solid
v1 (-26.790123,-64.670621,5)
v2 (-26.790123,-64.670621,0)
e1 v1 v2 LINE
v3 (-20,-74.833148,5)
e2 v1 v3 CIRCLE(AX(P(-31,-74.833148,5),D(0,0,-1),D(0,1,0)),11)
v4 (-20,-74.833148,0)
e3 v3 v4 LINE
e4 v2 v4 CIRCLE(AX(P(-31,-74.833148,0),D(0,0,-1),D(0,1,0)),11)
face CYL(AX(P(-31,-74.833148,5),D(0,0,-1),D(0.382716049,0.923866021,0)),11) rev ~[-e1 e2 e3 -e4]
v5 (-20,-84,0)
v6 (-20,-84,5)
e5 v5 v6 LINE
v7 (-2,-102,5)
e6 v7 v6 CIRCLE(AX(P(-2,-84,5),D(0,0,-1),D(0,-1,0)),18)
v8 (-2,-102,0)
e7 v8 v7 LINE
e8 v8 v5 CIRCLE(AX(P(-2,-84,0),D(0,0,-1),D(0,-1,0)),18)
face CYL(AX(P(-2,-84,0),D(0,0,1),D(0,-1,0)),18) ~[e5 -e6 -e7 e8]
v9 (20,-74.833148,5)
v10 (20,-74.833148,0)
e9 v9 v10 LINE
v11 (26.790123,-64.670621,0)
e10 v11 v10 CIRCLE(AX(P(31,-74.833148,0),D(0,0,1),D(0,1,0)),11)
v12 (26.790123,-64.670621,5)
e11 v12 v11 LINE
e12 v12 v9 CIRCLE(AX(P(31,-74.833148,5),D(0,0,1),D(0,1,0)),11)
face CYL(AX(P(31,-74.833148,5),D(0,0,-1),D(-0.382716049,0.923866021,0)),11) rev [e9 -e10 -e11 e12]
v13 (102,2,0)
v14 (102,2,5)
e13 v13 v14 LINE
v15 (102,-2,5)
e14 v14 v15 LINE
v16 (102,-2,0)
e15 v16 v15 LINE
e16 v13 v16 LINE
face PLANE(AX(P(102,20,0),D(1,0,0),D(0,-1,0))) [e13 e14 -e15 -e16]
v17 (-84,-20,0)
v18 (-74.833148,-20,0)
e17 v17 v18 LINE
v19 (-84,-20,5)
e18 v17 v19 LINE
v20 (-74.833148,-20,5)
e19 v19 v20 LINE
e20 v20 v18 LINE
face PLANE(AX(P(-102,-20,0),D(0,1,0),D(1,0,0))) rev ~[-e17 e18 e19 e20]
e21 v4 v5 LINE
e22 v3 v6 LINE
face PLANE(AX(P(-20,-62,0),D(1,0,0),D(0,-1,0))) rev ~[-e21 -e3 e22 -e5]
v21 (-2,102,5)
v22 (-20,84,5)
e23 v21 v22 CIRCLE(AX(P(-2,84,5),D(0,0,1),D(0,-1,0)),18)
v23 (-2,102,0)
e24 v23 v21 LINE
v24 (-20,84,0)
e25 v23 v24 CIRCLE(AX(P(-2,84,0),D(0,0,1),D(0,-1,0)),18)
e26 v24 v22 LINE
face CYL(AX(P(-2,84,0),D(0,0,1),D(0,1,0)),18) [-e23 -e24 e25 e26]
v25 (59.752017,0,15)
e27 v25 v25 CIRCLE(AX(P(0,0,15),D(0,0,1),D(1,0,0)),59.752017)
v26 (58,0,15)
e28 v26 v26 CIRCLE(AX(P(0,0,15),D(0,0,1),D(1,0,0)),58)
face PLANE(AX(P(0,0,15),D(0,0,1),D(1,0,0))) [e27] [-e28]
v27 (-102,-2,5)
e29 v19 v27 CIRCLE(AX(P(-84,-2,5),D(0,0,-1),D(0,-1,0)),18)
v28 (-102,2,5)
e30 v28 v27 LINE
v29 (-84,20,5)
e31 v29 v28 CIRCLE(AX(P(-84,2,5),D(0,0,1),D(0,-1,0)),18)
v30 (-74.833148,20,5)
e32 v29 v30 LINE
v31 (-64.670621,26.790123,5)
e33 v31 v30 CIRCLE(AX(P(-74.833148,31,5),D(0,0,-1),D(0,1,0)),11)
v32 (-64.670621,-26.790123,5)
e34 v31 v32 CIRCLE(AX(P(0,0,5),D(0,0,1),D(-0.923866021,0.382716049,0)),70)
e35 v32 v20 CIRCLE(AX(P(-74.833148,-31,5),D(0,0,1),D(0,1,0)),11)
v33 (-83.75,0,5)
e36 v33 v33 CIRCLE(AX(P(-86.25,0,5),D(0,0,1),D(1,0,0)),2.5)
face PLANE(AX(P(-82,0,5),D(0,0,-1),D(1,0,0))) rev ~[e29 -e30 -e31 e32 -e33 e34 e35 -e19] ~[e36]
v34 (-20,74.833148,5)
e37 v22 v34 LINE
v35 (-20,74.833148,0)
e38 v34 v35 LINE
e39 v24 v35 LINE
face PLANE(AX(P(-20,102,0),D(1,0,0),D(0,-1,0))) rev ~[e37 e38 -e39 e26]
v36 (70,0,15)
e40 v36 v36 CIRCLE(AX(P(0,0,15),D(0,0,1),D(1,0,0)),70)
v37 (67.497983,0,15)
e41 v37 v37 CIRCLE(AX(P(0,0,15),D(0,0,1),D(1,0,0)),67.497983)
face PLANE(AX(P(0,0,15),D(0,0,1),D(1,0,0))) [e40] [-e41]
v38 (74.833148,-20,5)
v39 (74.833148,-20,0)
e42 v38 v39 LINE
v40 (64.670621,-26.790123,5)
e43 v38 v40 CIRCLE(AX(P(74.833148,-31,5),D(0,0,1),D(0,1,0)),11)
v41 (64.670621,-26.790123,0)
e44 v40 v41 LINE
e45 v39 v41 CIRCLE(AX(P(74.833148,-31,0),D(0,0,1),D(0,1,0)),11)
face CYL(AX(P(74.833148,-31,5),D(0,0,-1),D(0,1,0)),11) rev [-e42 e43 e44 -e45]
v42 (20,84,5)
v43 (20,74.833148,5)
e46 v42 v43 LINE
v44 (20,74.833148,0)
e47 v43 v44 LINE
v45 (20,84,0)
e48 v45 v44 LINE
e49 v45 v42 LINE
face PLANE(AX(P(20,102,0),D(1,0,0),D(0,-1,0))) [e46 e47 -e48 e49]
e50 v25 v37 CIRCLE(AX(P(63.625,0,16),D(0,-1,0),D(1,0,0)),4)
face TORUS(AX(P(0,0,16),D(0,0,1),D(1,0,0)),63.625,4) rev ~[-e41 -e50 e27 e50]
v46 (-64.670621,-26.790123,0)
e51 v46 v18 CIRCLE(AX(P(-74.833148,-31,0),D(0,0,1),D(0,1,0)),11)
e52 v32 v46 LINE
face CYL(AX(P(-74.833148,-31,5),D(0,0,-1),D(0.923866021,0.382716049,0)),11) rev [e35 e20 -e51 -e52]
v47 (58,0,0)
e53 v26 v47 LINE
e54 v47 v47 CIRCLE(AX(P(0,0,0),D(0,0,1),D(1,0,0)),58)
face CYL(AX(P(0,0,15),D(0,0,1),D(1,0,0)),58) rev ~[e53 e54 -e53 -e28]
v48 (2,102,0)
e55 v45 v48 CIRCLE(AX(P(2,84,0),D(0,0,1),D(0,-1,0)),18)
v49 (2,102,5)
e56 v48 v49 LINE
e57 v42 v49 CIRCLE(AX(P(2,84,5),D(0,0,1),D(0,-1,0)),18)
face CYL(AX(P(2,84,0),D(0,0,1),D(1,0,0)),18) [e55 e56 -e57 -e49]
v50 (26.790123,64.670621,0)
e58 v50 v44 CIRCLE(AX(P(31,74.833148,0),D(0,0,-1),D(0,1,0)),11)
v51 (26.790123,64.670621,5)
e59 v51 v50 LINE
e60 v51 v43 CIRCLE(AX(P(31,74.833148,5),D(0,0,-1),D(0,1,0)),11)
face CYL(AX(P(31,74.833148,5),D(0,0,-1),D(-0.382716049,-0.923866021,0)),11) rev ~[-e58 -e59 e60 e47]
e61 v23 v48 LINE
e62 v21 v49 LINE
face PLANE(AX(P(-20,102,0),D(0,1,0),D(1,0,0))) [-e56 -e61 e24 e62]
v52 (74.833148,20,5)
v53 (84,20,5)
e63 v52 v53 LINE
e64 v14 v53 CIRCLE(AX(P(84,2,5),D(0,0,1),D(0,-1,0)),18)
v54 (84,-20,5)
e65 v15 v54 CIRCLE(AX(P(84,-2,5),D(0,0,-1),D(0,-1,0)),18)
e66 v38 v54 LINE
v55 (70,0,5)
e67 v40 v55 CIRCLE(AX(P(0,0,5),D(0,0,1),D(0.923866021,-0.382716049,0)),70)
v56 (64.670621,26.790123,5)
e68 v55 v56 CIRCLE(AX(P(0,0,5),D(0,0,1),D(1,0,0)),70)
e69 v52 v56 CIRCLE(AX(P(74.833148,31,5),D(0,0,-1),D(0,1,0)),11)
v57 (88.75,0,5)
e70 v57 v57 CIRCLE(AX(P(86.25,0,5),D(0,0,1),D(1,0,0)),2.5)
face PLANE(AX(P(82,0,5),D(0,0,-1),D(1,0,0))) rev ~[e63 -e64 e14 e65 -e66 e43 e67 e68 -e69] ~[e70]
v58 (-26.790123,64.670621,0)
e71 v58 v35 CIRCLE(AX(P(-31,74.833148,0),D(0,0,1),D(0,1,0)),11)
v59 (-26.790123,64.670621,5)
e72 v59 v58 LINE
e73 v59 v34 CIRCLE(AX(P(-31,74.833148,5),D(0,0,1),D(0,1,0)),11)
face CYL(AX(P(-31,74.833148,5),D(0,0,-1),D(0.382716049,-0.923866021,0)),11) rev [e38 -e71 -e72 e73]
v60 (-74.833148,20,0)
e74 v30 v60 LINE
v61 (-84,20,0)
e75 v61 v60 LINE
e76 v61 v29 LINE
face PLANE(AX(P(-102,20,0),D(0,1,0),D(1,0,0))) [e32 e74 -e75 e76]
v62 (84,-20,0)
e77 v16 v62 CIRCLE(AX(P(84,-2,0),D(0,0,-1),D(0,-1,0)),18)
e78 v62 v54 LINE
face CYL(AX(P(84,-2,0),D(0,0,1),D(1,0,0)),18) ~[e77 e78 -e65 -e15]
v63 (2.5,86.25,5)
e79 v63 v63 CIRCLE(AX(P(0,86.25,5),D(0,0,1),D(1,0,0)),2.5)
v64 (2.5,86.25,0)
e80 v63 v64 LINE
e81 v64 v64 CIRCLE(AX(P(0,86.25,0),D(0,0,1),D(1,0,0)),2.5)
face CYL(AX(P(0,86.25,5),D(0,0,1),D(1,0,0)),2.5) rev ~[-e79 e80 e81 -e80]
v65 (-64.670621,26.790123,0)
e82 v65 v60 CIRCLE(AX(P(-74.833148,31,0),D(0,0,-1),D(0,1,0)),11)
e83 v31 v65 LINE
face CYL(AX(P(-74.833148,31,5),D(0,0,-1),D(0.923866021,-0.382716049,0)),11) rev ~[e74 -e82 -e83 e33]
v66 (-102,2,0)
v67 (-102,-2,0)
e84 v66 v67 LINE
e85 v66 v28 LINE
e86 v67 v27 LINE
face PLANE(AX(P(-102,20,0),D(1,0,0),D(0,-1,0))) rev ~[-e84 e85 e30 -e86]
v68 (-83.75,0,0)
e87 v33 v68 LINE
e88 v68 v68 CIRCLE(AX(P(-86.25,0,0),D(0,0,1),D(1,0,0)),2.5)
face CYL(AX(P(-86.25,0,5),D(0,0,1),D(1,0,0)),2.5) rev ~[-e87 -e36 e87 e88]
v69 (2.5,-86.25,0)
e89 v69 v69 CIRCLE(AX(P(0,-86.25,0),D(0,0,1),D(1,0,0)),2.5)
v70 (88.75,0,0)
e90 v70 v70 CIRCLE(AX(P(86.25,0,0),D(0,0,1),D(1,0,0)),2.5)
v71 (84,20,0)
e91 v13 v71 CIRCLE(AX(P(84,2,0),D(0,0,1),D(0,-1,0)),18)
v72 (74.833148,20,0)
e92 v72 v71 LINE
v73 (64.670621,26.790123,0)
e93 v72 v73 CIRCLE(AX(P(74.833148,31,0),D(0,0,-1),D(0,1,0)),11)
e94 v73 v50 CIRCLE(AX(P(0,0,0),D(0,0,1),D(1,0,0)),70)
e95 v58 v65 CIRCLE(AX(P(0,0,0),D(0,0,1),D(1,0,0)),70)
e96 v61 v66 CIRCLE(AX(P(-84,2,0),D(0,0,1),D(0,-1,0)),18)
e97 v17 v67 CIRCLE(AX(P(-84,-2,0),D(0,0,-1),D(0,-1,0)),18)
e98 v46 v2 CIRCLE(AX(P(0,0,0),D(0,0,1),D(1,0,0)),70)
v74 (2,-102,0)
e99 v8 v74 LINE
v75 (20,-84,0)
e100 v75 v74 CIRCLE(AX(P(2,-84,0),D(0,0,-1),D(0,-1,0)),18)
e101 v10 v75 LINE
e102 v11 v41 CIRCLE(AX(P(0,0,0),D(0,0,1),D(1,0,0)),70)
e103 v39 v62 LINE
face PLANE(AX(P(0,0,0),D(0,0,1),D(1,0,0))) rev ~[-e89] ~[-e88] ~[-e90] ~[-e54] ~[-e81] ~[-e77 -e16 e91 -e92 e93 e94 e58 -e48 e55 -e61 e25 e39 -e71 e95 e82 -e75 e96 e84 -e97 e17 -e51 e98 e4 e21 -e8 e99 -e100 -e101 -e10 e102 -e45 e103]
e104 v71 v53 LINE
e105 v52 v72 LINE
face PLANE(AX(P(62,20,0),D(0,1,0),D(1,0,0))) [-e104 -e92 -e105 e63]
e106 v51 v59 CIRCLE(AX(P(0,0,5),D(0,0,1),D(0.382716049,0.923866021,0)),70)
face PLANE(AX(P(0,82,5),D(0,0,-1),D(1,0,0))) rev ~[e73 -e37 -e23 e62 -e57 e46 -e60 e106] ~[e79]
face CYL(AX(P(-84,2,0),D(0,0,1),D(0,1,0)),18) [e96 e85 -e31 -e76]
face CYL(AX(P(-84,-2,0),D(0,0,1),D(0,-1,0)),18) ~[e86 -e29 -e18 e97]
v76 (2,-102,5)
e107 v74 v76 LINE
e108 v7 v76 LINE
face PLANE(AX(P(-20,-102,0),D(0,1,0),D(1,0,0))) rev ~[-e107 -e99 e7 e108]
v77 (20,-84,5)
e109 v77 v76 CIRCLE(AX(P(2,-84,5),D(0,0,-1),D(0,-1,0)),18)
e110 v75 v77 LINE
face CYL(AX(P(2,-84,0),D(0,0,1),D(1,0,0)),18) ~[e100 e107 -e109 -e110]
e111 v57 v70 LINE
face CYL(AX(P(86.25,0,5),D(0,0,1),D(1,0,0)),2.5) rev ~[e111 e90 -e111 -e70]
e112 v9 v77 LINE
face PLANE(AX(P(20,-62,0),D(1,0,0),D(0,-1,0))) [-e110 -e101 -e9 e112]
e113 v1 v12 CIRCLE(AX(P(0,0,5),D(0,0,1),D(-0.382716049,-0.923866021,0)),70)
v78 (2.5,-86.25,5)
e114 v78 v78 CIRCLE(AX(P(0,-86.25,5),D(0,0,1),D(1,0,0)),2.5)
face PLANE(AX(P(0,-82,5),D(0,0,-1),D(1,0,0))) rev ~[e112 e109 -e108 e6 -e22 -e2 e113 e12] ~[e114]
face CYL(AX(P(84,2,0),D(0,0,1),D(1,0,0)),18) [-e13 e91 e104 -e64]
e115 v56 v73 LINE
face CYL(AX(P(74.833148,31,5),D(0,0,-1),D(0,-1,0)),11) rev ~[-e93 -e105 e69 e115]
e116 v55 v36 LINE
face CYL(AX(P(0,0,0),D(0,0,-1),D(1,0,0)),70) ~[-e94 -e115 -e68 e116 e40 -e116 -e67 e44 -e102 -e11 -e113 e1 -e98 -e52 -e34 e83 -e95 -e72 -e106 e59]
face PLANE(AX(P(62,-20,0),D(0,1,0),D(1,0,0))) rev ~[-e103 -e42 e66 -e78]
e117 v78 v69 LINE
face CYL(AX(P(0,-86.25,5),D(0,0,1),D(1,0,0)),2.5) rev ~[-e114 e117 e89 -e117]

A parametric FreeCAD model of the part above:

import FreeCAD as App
import Part
import Sketcher


def edges_at(feature, points):
    """Names of the edges that pass closest to the given points."""
    edges = feature.Shape.Edges
    near = lambda p: min(range(len(edges)), key=lambda i: edges[i].distToShape(Part.Vertex(*p))[0])
    return sorted({f"Edge{near(p) + 1}" for p in points})

doc = App.newDocument("Part")
body = doc.addObject("PartDesign::Body", "Body")

sketch1 = doc.addObject("Sketcher::SketchObject", "Sketch")
body.addObject(sketch1)
sketch1.AttachmentSupport = (doc.XY_Plane, [""])
sketch1.MapMode = "FlatFace"
sketch1.addGeometry(Part.Circle(App.Vector(0, 0, 0), App.Vector(0, 0, 1), 70), False)
sketch1.addGeometry(Part.Circle(App.Vector(0, 0, 0), App.Vector(0, 0, 1), 57), False)
sketch1.addConstraint(Sketcher.Constraint("Coincident", 0, 3, -1, 1))
sketch1.addConstraint(Sketcher.Constraint("Coincident", 1, 3, -1, 1))
sketch1.addConstraint(Sketcher.Constraint("Diameter", 0, 140.0))
sketch1.addConstraint(Sketcher.Constraint("Diameter", 1, 114.5))
pad1 = doc.addObject("PartDesign::Pad", "Pad")
body.addObject(pad1)
pad1.Profile = sketch1
pad1.Length = 15

sketch2 = doc.addObject("Sketcher::SketchObject", "Sketch001")
body.addObject(sketch2)
sketch2.AttachmentSupport = (doc.XZ_Plane, [""])
sketch2.MapMode = "FlatFace"
sketch2.addGeometry(Part.Circle(App.Vector(63.6, 16, 0), App.Vector(0, 0, 1), 4), False)
sketch2.addConstraint(Sketcher.Constraint("Diameter", 0, 8.0))
sketch2.addConstraint(Sketcher.Constraint("DistanceY", -1, 1, 0, 3, 16.0))
sketch2.addConstraint(Sketcher.Constraint("DistanceX", -1, 1, 0, 3, 63.625))
groove = doc.addObject("PartDesign::Groove", "Groove")
body.addObject(groove)
groove.Profile = sketch2
groove.ReferenceAxis = (sketch2, ["V_Axis"])
groove.Angle = 360

sketch3 = doc.addObject("Sketcher::SketchObject", "Sketch002")
body.addObject(sketch3)
sketch3.AttachmentSupport = (doc.XY_Plane, [""])
sketch3.MapMode = "FlatFace"
sketch3.addGeometry(Part.LineSegment(App.Vector(62, -20, 0), App.Vector(62, 20, 0)), False)
sketch3.addGeometry(Part.LineSegment(App.Vector(62, 20, 0), App.Vector(102, 20, 0)), False)
sketch3.addGeometry(Part.LineSegment(App.Vector(102, 20, 0), App.Vector(102, -20, 0)), False)
sketch3.addGeometry(Part.LineSegment(App.Vector(102, -20, 0), App.Vector(62, -20, 0)), False)
sketch3.addGeometry(Part.LineSegment(App.Vector(-102, -20, 0), App.Vector(-102, 20, 0)), False)
sketch3.addGeometry(Part.LineSegment(App.Vector(-102, 20, 0), App.Vector(-62, 20, 0)), False)
sketch3.addGeometry(Part.LineSegment(App.Vector(-62, 20, 0), App.Vector(-62, -20, 0)), False)
sketch3.addGeometry(Part.LineSegment(App.Vector(-62, -20, 0), App.Vector(-102, -20, 0)), False)
sketch3.addGeometry(Part.LineSegment(App.Vector(-20, -102, 0), App.Vector(-20, -62, 0)), False)
sketch3.addGeometry(Part.LineSegment(App.Vector(-20, -62, 0), App.Vector(20, -62, 0)), False)
sketch3.addGeometry(Part.LineSegment(App.Vector(20, -62, 0), App.Vector(20, -102, 0)), False)
sketch3.addGeometry(Part.LineSegment(App.Vector(20, -102, 0), App.Vector(-20, -102, 0)), False)
sketch3.addGeometry(Part.LineSegment(App.Vector(-20, 62, 0), App.Vector(-20, 102, 0)), False)
sketch3.addGeometry(Part.LineSegment(App.Vector(-20, 102, 0), App.Vector(20, 102, 0)), False)
sketch3.addGeometry(Part.LineSegment(App.Vector(20, 102, 0), App.Vector(20, 62, 0)), False)
sketch3.addGeometry(Part.LineSegment(App.Vector(20, 62, 0), App.Vector(-20, 62, 0)), False)
sketch3.addConstraint(Sketcher.Constraint("Coincident", 0, 2, 1, 1))
sketch3.addConstraint(Sketcher.Constraint("Coincident", 1, 2, 2, 1))
sketch3.addConstraint(Sketcher.Constraint("Coincident", 2, 2, 3, 1))
sketch3.addConstraint(Sketcher.Constraint("Coincident", 3, 2, 0, 1))
sketch3.addConstraint(Sketcher.Constraint("Coincident", 4, 2, 5, 1))
sketch3.addConstraint(Sketcher.Constraint("Coincident", 5, 2, 6, 1))
sketch3.addConstraint(Sketcher.Constraint("Coincident", 6, 2, 7, 1))
sketch3.addConstraint(Sketcher.Constraint("Coincident", 7, 2, 4, 1))
sketch3.addConstraint(Sketcher.Constraint("Coincident", 8, 2, 9, 1))
sketch3.addConstraint(Sketcher.Constraint("Coincident", 9, 2, 10, 1))
sketch3.addConstraint(Sketcher.Constraint("Coincident", 10, 2, 11, 1))
sketch3.addConstraint(Sketcher.Constraint("Coincident", 11, 2, 8, 1))
sketch3.addConstraint(Sketcher.Constraint("Coincident", 12, 2, 13, 1))
sketch3.addConstraint(Sketcher.Constraint("Coincident", 13, 2, 14, 1))
sketch3.addConstraint(Sketcher.Constraint("Coincident", 14, 2, 15, 1))
sketch3.addConstraint(Sketcher.Constraint("Coincident", 15, 2, 12, 1))
sketch3.addConstraint(Sketcher.Constraint("Vertical", 0))
sketch3.addConstraint(Sketcher.Constraint("Horizontal", 1))
sketch3.addConstraint(Sketcher.Constraint("Vertical", 2))
sketch3.addConstraint(Sketcher.Constraint("Horizontal", 3))
sketch3.addConstraint(Sketcher.Constraint("Vertical", 4))
sketch3.addConstraint(Sketcher.Constraint("Horizontal", 5))
sketch3.addConstraint(Sketcher.Constraint("Vertical", 6))
sketch3.addConstraint(Sketcher.Constraint("Horizontal", 7))
sketch3.addConstraint(Sketcher.Constraint("Vertical", 8))
sketch3.addConstraint(Sketcher.Constraint("Horizontal", 9))
sketch3.addConstraint(Sketcher.Constraint("Vertical", 10))
sketch3.addConstraint(Sketcher.Constraint("Horizontal", 11))
sketch3.addConstraint(Sketcher.Constraint("Vertical", 12))
sketch3.addConstraint(Sketcher.Constraint("Horizontal", 13))
sketch3.addConstraint(Sketcher.Constraint("Vertical", 14))
sketch3.addConstraint(Sketcher.Constraint("Horizontal", 15))
sketch3.addConstraint(Sketcher.Constraint("Symmetric", 2, 2, 4, 2, -1, 1))
sketch3.addConstraint(Sketcher.Constraint("Symmetric", 0, 2, 6, 2, -1, 1))
sketch3.addConstraint(Sketcher.Constraint("Symmetric", 10, 2, 12, 2, -1, 1))
sketch3.addConstraint(Sketcher.Constraint("Symmetric", 8, 2, 14, 2, -1, 1))
sketch3.addConstraint(Sketcher.Constraint("Horizontal", 1, 2, 4, 2))
sketch3.addConstraint(Sketcher.Constraint("Vertical", 11, 2, 12, 2))
sketch3.addConstraint(Sketcher.Constraint("Equal", 7, 9))
sketch3.addConstraint(Sketcher.Constraint("Equal", 15, 0))
sketch3.addConstraint(Sketcher.Constraint("Equal", 6, 8))
sketch3.addConstraint(Sketcher.Constraint("DistanceX", 1, 1, 1, 2, 40.0))
sketch3.addConstraint(Sketcher.Constraint("DistanceX", -1, 1, 0, 2, 62.0))
sketch3.addConstraint(Sketcher.Constraint("DistanceY", 8, 2, -1, 1, 62.0))
pad2 = doc.addObject("PartDesign::Pad", "Pad001")
body.addObject(pad2)
pad2.Profile = sketch3
pad2.Length = 5

sketch4 = doc.addObject("Sketcher::SketchObject", "Sketch003")
body.addObject(sketch4)
sketch4.AttachmentSupport = (doc.XY_Plane, [""])
sketch4.MapMode = "FlatFace"
sketch4.AttachmentOffset = App.Placement(App.Vector(0, 0, 5), App.Rotation())
sketch4.addGeometry(Part.Circle(App.Vector(-86.2, 0, 0), App.Vector(0, 0, 1), 2.5), False)
sketch4.addGeometry(Part.Circle(App.Vector(0, -86.2, 0), App.Vector(0, 0, 1), 2.5), False)
sketch4.addGeometry(Part.Circle(App.Vector(86.2, 0, 0), App.Vector(0, 0, 1), 2.5), False)
sketch4.addGeometry(Part.Circle(App.Vector(0, 86.2, 0), App.Vector(0, 0, 1), 2.5), False)
sketch4.addConstraint(Sketcher.Constraint("Equal", 0, 1))
sketch4.addConstraint(Sketcher.Constraint("Equal", 1, 2))
sketch4.addConstraint(Sketcher.Constraint("Equal", 2, 3))
sketch4.addConstraint(Sketcher.Constraint("Symmetric", 0, 3, 2, 3, -1, 1))
sketch4.addConstraint(Sketcher.Constraint("Symmetric", 1, 3, 3, 3, -1, 1))
sketch4.addConstraint(Sketcher.Constraint("PointOnObject", 0, 3, -1))
sketch4.addConstraint(Sketcher.Constraint("PointOnObject", 1, 3, -2))
sketch4.addConstraint(Sketcher.Constraint("Diameter", 0, 5.0))
sketch4.addConstraint(Sketcher.Constraint("DistanceX", 0, 3, 2, 3, 172.5))
sketch4.addConstraint(Sketcher.Constraint("DistanceY", 1, 3, 3, 3, 172.5))
pocket1 = doc.addObject("PartDesign::Pocket", "Pocket")
body.addObject(pocket1)
pocket1.Profile = sketch4
pocket1.Length = 5
doc.recompute()

fillet = doc.addObject("PartDesign::Fillet", "Fillet")
body.addObject(fillet)
fillet.Base = (pocket1, edges_at(pocket1, [
    (-20, 102, 2.5),
    (20, 102, 2.5),
    (102, 20, 2.5),
    (102, -20, 2.5),
    (20, -102, 2.5),
    (-20, -102, 2.5),
    (-102, -20, 2.5),
    (-102, 20, 2.5),
]))
fillet.Radius = 18
doc.recompute()

fillet2 = doc.addObject("PartDesign::Fillet", "Fillet001")
body.addObject(fillet2)
fillet2.Base = (fillet, edges_at(fillet, [
    (67.082, 20, 2.5),
    (20, 67.082, 2.5),
    (-20, 67.082, 2.5),
    (-67.082, 20, 2.5),
    (-67.082, -20, 2.5),
    (-20, -67.082, 2.5),
    (20, -67.082, 2.5),
    (67.082, -20, 2.5),
]))
fillet2.Radius = 11

sketch5 = doc.addObject("Sketcher::SketchObject", "Sketch004")
body.addObject(sketch5)
sketch5.AttachmentSupport = (doc.XY_Plane, [""])
sketch5.MapMode = "FlatFace"
sketch5.AttachmentOffset = App.Placement(App.Vector(0, 0, 15), App.Rotation())
sketch5.addGeometry(Part.Circle(App.Vector(0, 0, 0), App.Vector(0, 0, 1), 58), False)
sketch5.addConstraint(Sketcher.Constraint("Coincident", 0, 3, -1, 1))
sketch5.addConstraint(Sketcher.Constraint("Diameter", 0, 116.0))
pocket2 = doc.addObject("PartDesign::Pocket", "Pocket001")
body.addObject(pocket2)
pocket2.Profile = sketch5
pocket2.Type = "ThroughAll"

doc.recompute()
